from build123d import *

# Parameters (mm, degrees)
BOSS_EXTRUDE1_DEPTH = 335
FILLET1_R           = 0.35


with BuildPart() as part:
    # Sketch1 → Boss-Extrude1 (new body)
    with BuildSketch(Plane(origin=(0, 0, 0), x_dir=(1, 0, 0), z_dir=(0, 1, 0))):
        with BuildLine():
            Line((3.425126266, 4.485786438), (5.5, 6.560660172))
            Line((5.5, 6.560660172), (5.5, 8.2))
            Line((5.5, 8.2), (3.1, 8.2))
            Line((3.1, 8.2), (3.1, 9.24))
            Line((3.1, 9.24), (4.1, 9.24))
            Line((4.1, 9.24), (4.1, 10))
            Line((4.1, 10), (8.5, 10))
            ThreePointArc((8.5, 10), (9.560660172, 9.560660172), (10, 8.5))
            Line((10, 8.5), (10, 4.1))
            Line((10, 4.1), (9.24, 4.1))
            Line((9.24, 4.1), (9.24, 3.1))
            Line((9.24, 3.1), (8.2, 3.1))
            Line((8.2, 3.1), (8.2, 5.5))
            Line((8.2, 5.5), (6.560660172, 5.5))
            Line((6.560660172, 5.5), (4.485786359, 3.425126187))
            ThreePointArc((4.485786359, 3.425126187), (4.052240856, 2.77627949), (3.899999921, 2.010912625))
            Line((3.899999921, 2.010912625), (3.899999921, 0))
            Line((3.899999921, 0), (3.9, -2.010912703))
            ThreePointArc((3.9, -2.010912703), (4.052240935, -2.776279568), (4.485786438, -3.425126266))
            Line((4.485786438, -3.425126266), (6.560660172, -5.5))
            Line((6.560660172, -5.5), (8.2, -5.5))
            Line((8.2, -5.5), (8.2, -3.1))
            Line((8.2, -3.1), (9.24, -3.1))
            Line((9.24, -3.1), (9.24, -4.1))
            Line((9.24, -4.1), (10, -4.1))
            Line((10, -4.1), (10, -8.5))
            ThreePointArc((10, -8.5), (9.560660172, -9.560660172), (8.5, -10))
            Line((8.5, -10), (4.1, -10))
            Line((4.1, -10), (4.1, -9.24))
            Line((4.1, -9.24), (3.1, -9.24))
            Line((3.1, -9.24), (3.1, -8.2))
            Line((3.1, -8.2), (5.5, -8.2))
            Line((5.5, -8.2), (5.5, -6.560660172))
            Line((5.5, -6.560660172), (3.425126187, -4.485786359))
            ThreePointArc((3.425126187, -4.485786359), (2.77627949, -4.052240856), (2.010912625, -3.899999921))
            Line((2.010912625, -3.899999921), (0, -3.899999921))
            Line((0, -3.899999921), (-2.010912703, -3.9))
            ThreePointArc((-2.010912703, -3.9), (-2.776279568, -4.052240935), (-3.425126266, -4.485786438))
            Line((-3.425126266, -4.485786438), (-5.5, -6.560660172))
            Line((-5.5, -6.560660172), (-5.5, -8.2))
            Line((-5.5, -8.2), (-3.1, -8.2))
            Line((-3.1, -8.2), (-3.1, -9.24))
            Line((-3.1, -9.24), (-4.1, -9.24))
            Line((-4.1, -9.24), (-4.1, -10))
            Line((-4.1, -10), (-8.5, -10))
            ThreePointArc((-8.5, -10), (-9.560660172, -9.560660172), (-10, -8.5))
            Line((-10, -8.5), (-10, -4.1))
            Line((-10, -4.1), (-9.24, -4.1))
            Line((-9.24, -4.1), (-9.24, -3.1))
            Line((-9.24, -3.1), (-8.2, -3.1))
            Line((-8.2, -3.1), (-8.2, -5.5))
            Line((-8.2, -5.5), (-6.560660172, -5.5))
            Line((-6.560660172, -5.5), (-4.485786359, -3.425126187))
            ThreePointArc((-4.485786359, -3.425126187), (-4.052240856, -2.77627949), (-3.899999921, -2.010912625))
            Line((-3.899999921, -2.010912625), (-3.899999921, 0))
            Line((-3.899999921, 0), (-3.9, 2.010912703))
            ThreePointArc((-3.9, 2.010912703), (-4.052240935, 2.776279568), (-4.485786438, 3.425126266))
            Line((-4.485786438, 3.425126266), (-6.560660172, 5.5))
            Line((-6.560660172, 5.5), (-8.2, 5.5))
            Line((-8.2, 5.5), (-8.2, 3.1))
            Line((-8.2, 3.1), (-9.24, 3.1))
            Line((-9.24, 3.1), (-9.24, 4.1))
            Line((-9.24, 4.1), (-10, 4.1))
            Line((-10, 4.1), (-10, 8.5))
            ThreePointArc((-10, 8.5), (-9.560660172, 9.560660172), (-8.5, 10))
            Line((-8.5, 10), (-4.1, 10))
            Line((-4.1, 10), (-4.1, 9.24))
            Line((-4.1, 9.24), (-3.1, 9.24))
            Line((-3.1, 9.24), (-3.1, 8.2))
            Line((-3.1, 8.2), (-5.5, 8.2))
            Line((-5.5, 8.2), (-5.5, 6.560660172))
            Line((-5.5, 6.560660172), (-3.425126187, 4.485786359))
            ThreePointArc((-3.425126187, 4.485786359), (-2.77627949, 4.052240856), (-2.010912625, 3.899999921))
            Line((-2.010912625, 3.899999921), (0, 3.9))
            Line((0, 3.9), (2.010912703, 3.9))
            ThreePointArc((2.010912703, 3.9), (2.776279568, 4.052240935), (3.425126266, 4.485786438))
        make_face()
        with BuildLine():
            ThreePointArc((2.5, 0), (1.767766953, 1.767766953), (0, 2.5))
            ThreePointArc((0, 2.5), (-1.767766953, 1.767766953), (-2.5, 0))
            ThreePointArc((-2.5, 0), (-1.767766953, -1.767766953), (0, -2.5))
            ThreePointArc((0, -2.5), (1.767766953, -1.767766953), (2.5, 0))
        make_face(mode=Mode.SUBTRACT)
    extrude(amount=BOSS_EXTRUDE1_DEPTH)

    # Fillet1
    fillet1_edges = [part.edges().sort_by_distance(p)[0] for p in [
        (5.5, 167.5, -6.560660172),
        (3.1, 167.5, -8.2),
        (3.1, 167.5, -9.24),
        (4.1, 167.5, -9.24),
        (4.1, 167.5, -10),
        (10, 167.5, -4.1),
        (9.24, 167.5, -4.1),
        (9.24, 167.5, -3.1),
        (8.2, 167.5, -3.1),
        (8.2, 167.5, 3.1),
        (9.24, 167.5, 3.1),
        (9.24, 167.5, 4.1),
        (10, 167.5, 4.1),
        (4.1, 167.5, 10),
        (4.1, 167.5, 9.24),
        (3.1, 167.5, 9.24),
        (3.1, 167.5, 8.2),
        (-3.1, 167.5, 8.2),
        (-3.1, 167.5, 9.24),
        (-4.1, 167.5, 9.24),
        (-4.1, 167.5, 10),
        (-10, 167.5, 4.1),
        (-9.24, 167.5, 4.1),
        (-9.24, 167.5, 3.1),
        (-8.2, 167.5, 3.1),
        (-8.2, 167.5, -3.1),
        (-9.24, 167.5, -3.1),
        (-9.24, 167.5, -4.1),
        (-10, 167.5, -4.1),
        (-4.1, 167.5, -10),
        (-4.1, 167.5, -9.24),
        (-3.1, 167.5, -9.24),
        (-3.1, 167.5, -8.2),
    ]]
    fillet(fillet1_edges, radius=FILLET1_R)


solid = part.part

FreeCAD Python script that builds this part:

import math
import FreeCAD as App
import Part
import Sketcher
Q = App.Units.Quantity


def edges_at(feature, points):
    """Names of the edges that pass closest to the given points."""
    edges = feature.Shape.Edges
    near = lambda p: min(range(len(edges)), key=lambda i: edges[i].distToShape(Part.Vertex(*p))[0])
    return sorted({f"Edge{near(p) + 1}" for p in points})

doc = App.newDocument("Part")
body = doc.addObject("PartDesign::Body", "Body")

# Sketch on XZ plane
sketch1 = body.newObject("Sketcher::SketchObject", "Sketch")
sketch1.AttachmentSupport = (doc.getObject("XZ_Plane"), [""])
sketch1.MapMode = "FlatFace"
sketch1.addGeometry([
    Part.LineSegment(App.Vector(5.5, -6.6, 0), App.Vector(3.4, -4.5, 0)),  # 0
    Part.ArcOfCircle(Part.Circle(App.Vector(2, -5.9, 0), App.Vector(0, 0, 1), 2), math.radians(45), math.radians(90)),  # 1
    Part.LineSegment(App.Vector(2, -3.9, 0), App.Vector(0, -3.9, 0)),  # 2
    Part.LineSegment(App.Vector(0, -3.9, 0), App.Vector(-2, -3.9, 0)),  # 3
    Part.ArcOfCircle(Part.Circle(App.Vector(-2, -5.9, 0), App.Vector(0, 0, 1), 2), math.radians(90), math.radians(135)),  # 4
    Part.LineSegment(App.Vector(-3.4, -4.5, 0), App.Vector(-5.5, -6.6, 0)),  # 5
    Part.LineSegment(App.Vector(-5.5, -6.6, 0), App.Vector(-5.5, -8.2, 0)),  # 6
    Part.LineSegment(App.Vector(-5.5, -8.2, 0), App.Vector(-3.1, -8.2, 0)),  # 7
    Part.LineSegment(App.Vector(-3.1, -8.2, 0), App.Vector(-3.1, -9.2, 0)),  # 8
    Part.LineSegment(App.Vector(-3.1, -9.2, 0), App.Vector(-4.1, -9.2, 0)),  # 9
    Part.LineSegment(App.Vector(-4.1, -9.2, 0), App.Vector(-4.1, -10, 0)),  # 10
    Part.LineSegment(App.Vector(-4.1, -10, 0), App.Vector(-8.5, -10, 0)),  # 11
    Part.ArcOfCircle(Part.Circle(App.Vector(-8.5, -8.5, 0), App.Vector(0, 0, 1), 1.5), math.radians(180), math.radians(270)),  # 12
    Part.LineSegment(App.Vector(-10, -8.5, 0), App.Vector(-10, -4.1, 0)),  # 13
    Part.LineSegment(App.Vector(-10, -4.1, 0), App.Vector(-9.2, -4.1, 0)),  # 14
    Part.LineSegment(App.Vector(-9.2, -4.1, 0), App.Vector(-9.2, -3.1, 0)),  # 15
    Part.LineSegment(App.Vector(-9.2, -3.1, 0), App.Vector(-8.2, -3.1, 0)),  # 16
    Part.LineSegment(App.Vector(-8.2, -3.1, 0), App.Vector(-8.2, -5.5, 0)),  # 17
    Part.LineSegment(App.Vector(-8.2, -5.5, 0), App.Vector(-6.6, -5.5, 0)),  # 18
    Part.LineSegment(App.Vector(-6.6, -5.5, 0), App.Vector(-4.5, -3.4, 0)),  # 19
    Part.ArcOfCircle(Part.Circle(App.Vector(-5.9, -2, 0), App.Vector(0, 0, 1), 2), math.radians(-45), math.radians(0)),  # 20
    Part.LineSegment(App.Vector(-3.9, -2, 0), App.Vector(-3.9, 0, 0)),  # 21
    Part.LineSegment(App.Vector(-3.9, 0, 0), App.Vector(-3.9, 2, 0)),  # 22
    Part.ArcOfCircle(Part.Circle(App.Vector(-5.9, 2, 0), App.Vector(0, 0, 1), 2), math.radians(0), math.radians(45)),  # 23
    Part.LineSegment(App.Vector(-4.5, 3.4, 0), App.Vector(-6.6, 5.5, 0)),  # 24
    Part.LineSegment(App.Vector(-6.6, 5.5, 0), App.Vector(-8.2, 5.5, 0)),  # 25
    Part.LineSegment(App.Vector(-8.2, 5.5, 0), App.Vector(-8.2, 3.1, 0)),  # 26
    Part.LineSegment(App.Vector(-8.2, 3.1, 0), App.Vector(-9.2, 3.1, 0)),  # 27
    Part.LineSegment(App.Vector(-9.2, 3.1, 0), App.Vector(-9.2, 4.1, 0)),  # 28
    Part.LineSegment(App.Vector(-9.2, 4.1, 0), App.Vector(-10, 4.1, 0)),  # 29
    Part.LineSegment(App.Vector(-10, 4.1, 0), App.Vector(-10, 8.5, 0)),  # 30
    Part.ArcOfCircle(Part.Circle(App.Vector(-8.5, 8.5, 0), App.Vector(0, 0, 1), 1.5), math.radians(90), math.radians(180)),  # 31
    Part.LineSegment(App.Vector(-8.5, 10, 0), App.Vector(-4.1, 10, 0)),  # 32
    Part.LineSegment(App.Vector(-4.1, 10, 0), App.Vector(-4.1, 9.2, 0)),  # 33
    Part.LineSegment(App.Vector(-4.1, 9.2, 0), App.Vector(-3.1, 9.2, 0)),  # 34
    Part.LineSegment(App.Vector(-3.1, 9.2, 0), App.Vector(-3.1, 8.2, 0)),  # 35
    Part.LineSegment(App.Vector(-3.1, 8.2, 0), App.Vector(-5.5, 8.2, 0)),  # 36
    Part.LineSegment(App.Vector(-5.5, 8.2, 0), App.Vector(-5.5, 6.6, 0)),  # 37
    Part.LineSegment(App.Vector(-5.5, 6.6, 0), App.Vector(-3.4, 4.5, 0)),  # 38
    Part.ArcOfCircle(Part.Circle(App.Vector(-2, 5.9, 0), App.Vector(0, 0, 1), 2), math.radians(-135), math.radians(-90)),  # 39
    Part.LineSegment(App.Vector(-2, 3.9, 0), App.Vector(0, 3.9, 0)),  # 40
    Part.LineSegment(App.Vector(0, 3.9, 0), App.Vector(2, 3.9, 0)),  # 41
    Part.ArcOfCircle(Part.Circle(App.Vector(2, 5.9, 0), App.Vector(0, 0, 1), 2), math.radians(-90), math.radians(-45)),  # 42
    Part.LineSegment(App.Vector(3.4, 4.5, 0), App.Vector(5.5, 6.6, 0)),  # 43
    Part.LineSegment(App.Vector(5.5, 6.6, 0), App.Vector(5.5, 8.2, 0)),  # 44
    Part.LineSegment(App.Vector(5.5, 8.2, 0), App.Vector(3.1, 8.2, 0)),  # 45
    Part.LineSegment(App.Vector(3.1, 8.2, 0), App.Vector(3.1, 9.2, 0)),  # 46
    Part.LineSegment(App.Vector(3.1, 9.2, 0), App.Vector(4.1, 9.2, 0)),  # 47
    Part.LineSegment(App.Vector(4.1, 9.2, 0), App.Vector(4.1, 10, 0)),  # 48
    Part.LineSegment(App.Vector(4.1, 10, 0), App.Vector(8.5, 10, 0)),  # 49
    Part.ArcOfCircle(Part.Circle(App.Vector(8.5, 8.5, 0), App.Vector(0, 0, 1), 1.5), math.radians(0), math.radians(90)),  # 50
    Part.LineSegment(App.Vector(10, 8.5, 0), App.Vector(10, 4.1, 0)),  # 51
    Part.LineSegment(App.Vector(10, 4.1, 0), App.Vector(9.2, 4.1, 0)),  # 52
    Part.LineSegment(App.Vector(9.2, 4.1, 0), App.Vector(9.2, 3.1, 0)),  # 53
    Part.LineSegment(App.Vector(9.2, 3.1, 0), App.Vector(8.2, 3.1, 0)),  # 54
    Part.LineSegment(App.Vector(8.2, 3.1, 0), App.Vector(8.2, 5.5, 0)),  # 55
    Part.LineSegment(App.Vector(8.2, 5.5, 0), App.Vector(6.6, 5.5, 0)),  # 56
    Part.LineSegment(App.Vector(6.6, 5.5, 0), App.Vector(4.5, 3.4, 0)),  # 57
    Part.ArcOfCircle(Part.Circle(App.Vector(5.9, 2, 0), App.Vector(0, 0, 1), 2), math.radians(135), math.radians(180)),  # 58
    Part.LineSegment(App.Vector(3.9, 2, 0), App.Vector(3.9, 0, 0)),  # 59
    Part.LineSegment(App.Vector(3.9, 0, 0), App.Vector(3.9, -2, 0)),  # 60
    Part.ArcOfCircle(Part.Circle(App.Vector(5.9, -2, 0), App.Vector(0, 0, 1), 2), math.radians(180), math.radians(225)),  # 61
    Part.LineSegment(App.Vector(4.5, -3.4, 0), App.Vector(6.6, -5.5, 0)),  # 62
    Part.LineSegment(App.Vector(6.6, -5.5, 0), App.Vector(8.2, -5.5, 0)),  # 63
    Part.LineSegment(App.Vector(8.2, -5.5, 0), App.Vector(8.2, -3.1, 0)),  # 64
    Part.LineSegment(App.Vector(8.2, -3.1, 0), App.Vector(9.2, -3.1, 0)),  # 65
    Part.LineSegment(App.Vector(9.2, -3.1, 0), App.Vector(9.2, -4.1, 0)),  # 66
    Part.LineSegment(App.Vector(9.2, -4.1, 0), App.Vector(10, -4.1, 0)),  # 67
    Part.LineSegment(App.Vector(10, -4.1, 0), App.Vector(10, -8.5, 0)),  # 68
    Part.ArcOfCircle(Part.Circle(App.Vector(8.5, -8.5, 0), App.Vector(0, 0, 1), 1.5), math.radians(-90), math.radians(0)),  # 69
    Part.LineSegment(App.Vector(8.5, -10, 0), App.Vector(4.1, -10, 0)),  # 70
    Part.LineSegment(App.Vector(4.1, -10, 0), App.Vector(4.1, -9.2, 0)),  # 71
    Part.LineSegment(App.Vector(4.1, -9.2, 0), App.Vector(3.1, -9.2, 0)),  # 72
    Part.LineSegment(App.Vector(3.1, -9.2, 0), App.Vector(3.1, -8.2, 0)),  # 73
    Part.LineSegment(App.Vector(3.1, -8.2, 0), App.Vector(5.5, -8.2, 0)),  # 74
    Part.LineSegment(App.Vector(5.5, -8.2, 0), App.Vector(5.5, -6.6, 0)),  # 75
    Part.ArcOfCircle(Part.Circle(App.Vector(0, 0, 0), App.Vector(0, 0, 1), 2.5), math.radians(0), math.radians(90)),  # 76
    Part.ArcOfCircle(Part.Circle(App.Vector(0, 0, 0), App.Vector(0, 0, 1), 2.5), math.radians(90), math.radians(180)),  # 77
    Part.ArcOfCircle(Part.Circle(App.Vector(0, 0, 0), App.Vector(0, 0, 1), 2.5), math.radians(180), math.radians(270)),  # 78
    Part.ArcOfCircle(Part.Circle(App.Vector(0, 0, 0), App.Vector(0, 0, 1), 2.5), math.radians(-90), math.radians(0)),  # 79
], False)
sketch1.addConstraint([
    Sketcher.Constraint("Tangent", 0, 2, 1, 1),
    Sketcher.Constraint("Tangent", 1, 2, 2, 1),
    Sketcher.Constraint("Coincident", 2, 2, 3, 1),
    Sketcher.Constraint("Tangent", 3, 2, 4, 1),
    Sketcher.Constraint("Tangent", 4, 2, 5, 1),
    Sketcher.Constraint("Coincident", 5, 2, 6, 1),
    Sketcher.Constraint("Coincident", 6, 2, 7, 1),
    Sketcher.Constraint("Coincident", 7, 2, 8, 1),
    Sketcher.Constraint("Coincident", 8, 2, 9, 1),
    Sketcher.Constraint("Coincident", 9, 2, 10, 1),
    Sketcher.Constraint("Coincident", 10, 2, 11, 1),
    Sketcher.Constraint("Tangent", 11, 2, 12, 2),
    Sketcher.Constraint("Tangent", 12, 1, 13, 1),
    Sketcher.Constraint("Coincident", 13, 2, 14, 1),
    Sketcher.Constraint("Coincident", 14, 2, 15, 1),
    Sketcher.Constraint("Coincident", 15, 2, 16, 1),
    Sketcher.Constraint("Coincident", 16, 2, 17, 1),
    Sketcher.Constraint("Coincident", 17, 2, 18, 1),
    Sketcher.Constraint("Coincident", 18, 2, 19, 1),
    Sketcher.Constraint("Tangent", 19, 2, 20, 1),
    Sketcher.Constraint("Tangent", 20, 2, 21, 1),
    Sketcher.Constraint("Coincident", 21, 2, 22, 1),
    Sketcher.Constraint("Tangent", 22, 2, 23, 1),
    Sketcher.Constraint("Tangent", 23, 2, 24, 1),
    Sketcher.Constraint("Coincident", 24, 2, 25, 1),
    Sketcher.Constraint("Coincident", 25, 2, 26, 1),
    Sketcher.Constraint("Coincident", 26, 2, 27, 1),
    Sketcher.Constraint("Coincident", 27, 2, 28, 1),
    Sketcher.Constraint("Coincident", 28, 2, 29, 1),
    Sketcher.Constraint("Coincident", 29, 2, 30, 1),
    Sketcher.Constraint("Tangent", 30, 2, 31, 2),
    Sketcher.Constraint("Tangent", 31, 1, 32, 1),
    Sketcher.Constraint("Coincident", 32, 2, 33, 1),
    Sketcher.Constraint("Coincident", 33, 2, 34, 1),
    Sketcher.Constraint("Coincident", 34, 2, 35, 1),
    Sketcher.Constraint("Coincident", 35, 2, 36, 1),
    Sketcher.Constraint("Coincident", 36, 2, 37, 1),
    Sketcher.Constraint("Coincident", 37, 2, 38, 1),
    Sketcher.Constraint("Tangent", 38, 2, 39, 1),
    Sketcher.Constraint("Tangent", 39, 2, 40, 1),
    Sketcher.Constraint("Coincident", 40, 2, 41, 1),
    Sketcher.Constraint("Tangent", 41, 2, 42, 1),
    Sketcher.Constraint("Tangent", 42, 2, 43, 1),
    Sketcher.Constraint("Coincident", 43, 2, 44, 1),
    Sketcher.Constraint("Coincident", 44, 2, 45, 1),
    Sketcher.Constraint("Coincident", 45, 2, 46, 1),
    Sketcher.Constraint("Coincident", 46, 2, 47, 1),
    Sketcher.Constraint("Coincident", 47, 2, 48, 1),
    Sketcher.Constraint("Coincident", 48, 2, 49, 1),
    Sketcher.Constraint("Tangent", 49, 2, 50, 2),
    Sketcher.Constraint("Tangent", 50, 1, 51, 1),
    Sketcher.Constraint("Coincident", 51, 2, 52, 1),
    Sketcher.Constraint("Coincident", 52, 2, 53, 1),
    Sketcher.Constraint("Coincident", 53, 2, 54, 1),
    Sketcher.Constraint("Coincident", 54, 2, 55, 1),
    Sketcher.Constraint("Coincident", 55, 2, 56, 1),
    Sketcher.Constraint("Coincident", 56, 2, 57, 1),
    Sketcher.Constraint("Tangent", 57, 2, 58, 1),
    Sketcher.Constraint("Tangent", 58, 2, 59, 1),
    Sketcher.Constraint("Coincident", 59, 2, 60, 1),
    Sketcher.Constraint("Tangent", 60, 2, 61, 1),
    Sketcher.Constraint("Tangent", 61, 2, 62, 1),
    Sketcher.Constraint("Coincident", 62, 2, 63, 1),
    Sketcher.Constraint("Coincident", 63, 2, 64, 1),
    Sketcher.Constraint("Coincident", 64, 2, 65, 1),
    Sketcher.Constraint("Coincident", 65, 2, 66, 1),
    Sketcher.Constraint("Coincident", 66, 2, 67, 1),
    Sketcher.Constraint("Coincident", 67, 2, 68, 1),
    Sketcher.Constraint("Tangent", 68, 2, 69, 2),
    Sketcher.Constraint("Tangent", 69, 1, 70, 1),
    Sketcher.Constraint("Coincident", 70, 2, 71, 1),
    Sketcher.Constraint("Coincident", 71, 2, 72, 1),
    Sketcher.Constraint("Coincident", 72, 2, 73, 1),
    Sketcher.Constraint("Coincident", 73, 2, 74, 1),
    Sketcher.Constraint("Coincident", 74, 2, 75, 1),
    Sketcher.Constraint("Coincident", 75, 2, 0, 1),
    Sketcher.Constraint("Tangent", 76, 2, 77, 1),
    Sketcher.Constraint("Tangent", 77, 2, 78, 1),
    Sketcher.Constraint("Tangent", 78, 2, 79, 1),
    Sketcher.Constraint("Tangent", 79, 2, 76, 1),
    Sketcher.Constraint("Horizontal", 2),
    Sketcher.Constraint("Horizontal", 3),
    Sketcher.Constraint("Vertical", 6),
    Sketcher.Constraint("Horizontal", 7),
    Sketcher.Constraint("Vertical", 8),
    Sketcher.Constraint("Horizontal", 9),
    Sketcher.Constraint("Vertical", 10),
    Sketcher.Constraint("Horizontal", 11),
    Sketcher.Constraint("Vertical", 13),
    Sketcher.Constraint("Horizontal", 14),
    Sketcher.Constraint("Vertical", 15),
    Sketcher.Constraint("Horizontal", 16),
    Sketcher.Constraint("Vertical", 17),
    Sketcher.Constraint("Horizontal", 18),
    Sketcher.Constraint("Vertical", 21),
    Sketcher.Constraint("Vertical", 22),
    Sketcher.Constraint("Horizontal", 25),
    Sketcher.Constraint("Vertical", 26),
    Sketcher.Constraint("Horizontal", 27),
    Sketcher.Constraint("Vertical", 28),
    Sketcher.Constraint("Horizontal", 29),
    Sketcher.Constraint("Vertical", 30),
    Sketcher.Constraint("Horizontal", 32),
    Sketcher.Constraint("Vertical", 33),
    Sketcher.Constraint("Horizontal", 34),
    Sketcher.Constraint("Vertical", 35),
    Sketcher.Constraint("Horizontal", 36),
    Sketcher.Constraint("Vertical", 37),
    Sketcher.Constraint("Horizontal", 40),
    Sketcher.Constraint("Horizontal", 41),
    Sketcher.Constraint("Vertical", 44),
    Sketcher.Constraint("Horizontal", 45),
    Sketcher.Constraint("Vertical", 46),
    Sketcher.Constraint("Horizontal", 47),
    Sketcher.Constraint("Vertical", 48),
    Sketcher.Constraint("Horizontal", 49),
    Sketcher.Constraint("Vertical", 51),
    Sketcher.Constraint("Horizontal", 52),
    Sketcher.Constraint("Vertical", 53),
    Sketcher.Constraint("Horizontal", 54),
    Sketcher.Constraint("Vertical", 55),
    Sketcher.Constraint("Horizontal", 56),
    Sketcher.Constraint("Vertical", 59),
    Sketcher.Constraint("Vertical", 60),
    Sketcher.Constraint("Horizontal", 63),
    Sketcher.Constraint("Vertical", 64),
    Sketcher.Constraint("Horizontal", 65),
    Sketcher.Constraint("Vertical", 66),
    Sketcher.Constraint("Horizontal", 67),
    Sketcher.Constraint("Vertical", 68),
    Sketcher.Constraint("Horizontal", 70),
    Sketcher.Constraint("Vertical", 71),
    Sketcher.Constraint("Horizontal", 72),
    Sketcher.Constraint("Vertical", 73),
    Sketcher.Constraint("Horizontal", 74),
    Sketcher.Constraint("Vertical", 75),
    Sketcher.Constraint("Coincident", 76, 3, -1, 1),
    Sketcher.Constraint("Equal", 1, 4),
    Sketcher.Constraint("Equal", 4, 20),
    Sketcher.Constraint("Equal", 20, 23),
    Sketcher.Constraint("Equal", 12, 31),
    Sketcher.Constraint("Equal", 23, 39),
    Sketcher.Constraint("Equal", 39, 42),
    Sketcher.Constraint("Equal", 31, 50),
    Sketcher.Constraint("Equal", 42, 58),
    Sketcher.Constraint("Equal", 58, 61),
    Sketcher.Constraint("Equal", 50, 69),
    Sketcher.Constraint("Equal", 76, 77),
    Sketcher.Constraint("Symmetric", 1, 3, 39, 3, -1, 1),
    Sketcher.Constraint("Symmetric", 12, 3, 50, 3, -1, 1),
    Sketcher.Constraint("Symmetric", 20, 3, 58, 3, -1, 1),
    Sketcher.Constraint("Symmetric", 31, 3, 69, 3, -1, 1),
    Sketcher.Constraint("Symmetric", 4, 2, 42, 2, -1, 1),
    Sketcher.Constraint("Symmetric", 6, 2, 44, 2, -1, 1),
    Sketcher.Constraint("Symmetric", 8, 2, 46, 2, -1, 1),
    Sketcher.Constraint("Symmetric", 14, 2, 52, 2, -1, 1),
    Sketcher.Constraint("Symmetric", 16, 2, 54, 2, -1, 1),
    Sketcher.Constraint("Symmetric", 18, 2, 56, 2, -1, 1),
    Sketcher.Constraint("Symmetric", 23, 2, 61, 2, -1, 1),
    Sketcher.Constraint("Symmetric", 25, 2, 63, 2, -1, 1),
    Sketcher.Constraint("Symmetric", 27, 2, 65, 2, -1, 1),
    Sketcher.Constraint("Symmetric", 33, 2, 71, 2, -1, 1),
    Sketcher.Constraint("Symmetric", 35, 2, 73, 2, -1, 1),
    Sketcher.Constraint("Symmetric", 37, 2, 75, 2, -1, 1),
    Sketcher.Constraint("Symmetric", 31, 3, 50, 3, -2),
    Sketcher.Constraint("Symmetric", 0, 2, 4, 2, -2),
    Sketcher.Constraint("Symmetric", 36, 2, 44, 2, -2),
    Sketcher.Constraint("Symmetric", 34, 2, 46, 2, -2),
    Sketcher.Constraint("Symmetric", 28, 2, 52, 2, -2),
    Sketcher.Constraint("Symmetric", 26, 2, 54, 2, -2),
    Sketcher.Constraint("Symmetric", 24, 2, 56, 2, -2),
    Sketcher.Constraint("PointOnObject", 2, 2, -2),
    Sketcher.Constraint("PointOnObject", 21, 2, -1),
    Sketcher.Constraint("PointOnObject", 40, 2, -2),
    Sketcher.Constraint("PointOnObject", 59, 2, -1),
    Sketcher.Constraint("PointOnObject", 76, 2, -2),
    Sketcher.Constraint("PointOnObject", 77, 2, -1),
    Sketcher.Constraint("PointOnObject", 78, 2, -2),
    Sketcher.Constraint("PointOnObject", 79, 2, -1),
    Sketcher.Constraint("Perpendicular", 0, 5),
    Sketcher.Constraint("Parallel", 5, 19),
    Sketcher.Constraint("Perpendicular", 19, 24),
    Sketcher.Constraint("Horizontal", 14, 2, 66, 2),
    Sketcher.Constraint("Vertical", 10, 2, 32, 2),
    Sketcher.Constraint("Vertical", 48, 2, 70, 2),
    Sketcher.Constraint("Equal", 63, 6),
    Sketcher.Constraint("Equal", 65, 8),
    Sketcher.Constraint("Equal", 67, 10),
    Sketcher.Constraint("Equal", 70, 13),
    Sketcher.Constraint("Equal", 72, 15),
    Sketcher.Constraint("Equal", 74, 17),
    Sketcher.Constraint("Equal", 41, 21),
    Sketcher.Constraint("Equal", 5, 19),
    Sketcher.Constraint("Radius", 1, Q("2 mm")),
    Sketcher.Constraint("Radius", 12, Q("1.5 mm")),
    Sketcher.Constraint("Radius", 76, Q("2.5 mm")),
    Sketcher.Constraint("DistanceX", 9, 2, 9, 1, Q("1 mm")),
    Sketcher.Constraint("DistanceX", 7, 1, 7, 2, Q("2.4 mm")),
    Sketcher.Constraint("DistanceX", 11, 2, 11, 1, Q("4.4 mm")),
    Sketcher.Constraint("DistanceY", 10, 2, -1, 1, Q("10 mm")),
    Sketcher.Constraint("DistanceX", 14, 1, 14, 2, Q("0.76 mm")),
    Sketcher.Constraint("DistanceX", 16, 1, 16, 2, Q("1.04 mm")),
    Sketcher.Constraint("DistanceY", 1, 3, -1, 1, Q("5.9 mm")),
    Sketcher.Constraint("DistanceX", 18, 1, 18, 2, Q("1.63934 mm")),
])
pad1 = body.newObject("PartDesign::Pad", "Pad")
pad1.Profile = sketch1
pad1.Length = 335
pad1.Reversed = True
doc.recompute()

fillet = body.newObject("PartDesign::Fillet", "Fillet")
fillet.Base = (pad1, edges_at(pad1, [
    (5.5, 167.5, -6.561),
    (3.1, 167.5, -8.2),
    (3.1, 167.5, -9.24),
    (4.1, 167.5, -9.24),
    (4.1, 167.5, -10),
    (10, 167.5, -4.1),
    (9.24, 167.5, -4.1),
    (9.24, 167.5, -3.1),
    (8.2, 167.5, -3.1),
    (8.2, 167.5, 3.1),
    (9.24, 167.5, 3.1),
    (9.24, 167.5, 4.1),
    (10, 167.5, 4.1),
    (4.1, 167.5, 10),
    (4.1, 167.5, 9.24),
    (3.1, 167.5, 9.24),
    (3.1, 167.5, 8.2),
    (-3.1, 167.5, 8.2),
    (-3.1, 167.5, 9.24),
    (-4.1, 167.5, 9.24),
    (-4.1, 167.5, 10),
    (-10, 167.5, 4.1),
    (-9.24, 167.5, 4.1),
    (-9.24, 167.5, 3.1),
    (-8.2, 167.5, 3.1),
    (-8.2, 167.5, -3.1),
    (-9.24, 167.5, -3.1),
    (-9.24, 167.5, -4.1),
    (-10, 167.5, -4.1),
    (-4.1, 167.5, -10),
    (-4.1, 167.5, -9.24),
    (-3.1, 167.5, -9.24),
    (-3.1, 167.5, -8.2),
]))
fillet.Radius = 0.35

doc.recompute()
